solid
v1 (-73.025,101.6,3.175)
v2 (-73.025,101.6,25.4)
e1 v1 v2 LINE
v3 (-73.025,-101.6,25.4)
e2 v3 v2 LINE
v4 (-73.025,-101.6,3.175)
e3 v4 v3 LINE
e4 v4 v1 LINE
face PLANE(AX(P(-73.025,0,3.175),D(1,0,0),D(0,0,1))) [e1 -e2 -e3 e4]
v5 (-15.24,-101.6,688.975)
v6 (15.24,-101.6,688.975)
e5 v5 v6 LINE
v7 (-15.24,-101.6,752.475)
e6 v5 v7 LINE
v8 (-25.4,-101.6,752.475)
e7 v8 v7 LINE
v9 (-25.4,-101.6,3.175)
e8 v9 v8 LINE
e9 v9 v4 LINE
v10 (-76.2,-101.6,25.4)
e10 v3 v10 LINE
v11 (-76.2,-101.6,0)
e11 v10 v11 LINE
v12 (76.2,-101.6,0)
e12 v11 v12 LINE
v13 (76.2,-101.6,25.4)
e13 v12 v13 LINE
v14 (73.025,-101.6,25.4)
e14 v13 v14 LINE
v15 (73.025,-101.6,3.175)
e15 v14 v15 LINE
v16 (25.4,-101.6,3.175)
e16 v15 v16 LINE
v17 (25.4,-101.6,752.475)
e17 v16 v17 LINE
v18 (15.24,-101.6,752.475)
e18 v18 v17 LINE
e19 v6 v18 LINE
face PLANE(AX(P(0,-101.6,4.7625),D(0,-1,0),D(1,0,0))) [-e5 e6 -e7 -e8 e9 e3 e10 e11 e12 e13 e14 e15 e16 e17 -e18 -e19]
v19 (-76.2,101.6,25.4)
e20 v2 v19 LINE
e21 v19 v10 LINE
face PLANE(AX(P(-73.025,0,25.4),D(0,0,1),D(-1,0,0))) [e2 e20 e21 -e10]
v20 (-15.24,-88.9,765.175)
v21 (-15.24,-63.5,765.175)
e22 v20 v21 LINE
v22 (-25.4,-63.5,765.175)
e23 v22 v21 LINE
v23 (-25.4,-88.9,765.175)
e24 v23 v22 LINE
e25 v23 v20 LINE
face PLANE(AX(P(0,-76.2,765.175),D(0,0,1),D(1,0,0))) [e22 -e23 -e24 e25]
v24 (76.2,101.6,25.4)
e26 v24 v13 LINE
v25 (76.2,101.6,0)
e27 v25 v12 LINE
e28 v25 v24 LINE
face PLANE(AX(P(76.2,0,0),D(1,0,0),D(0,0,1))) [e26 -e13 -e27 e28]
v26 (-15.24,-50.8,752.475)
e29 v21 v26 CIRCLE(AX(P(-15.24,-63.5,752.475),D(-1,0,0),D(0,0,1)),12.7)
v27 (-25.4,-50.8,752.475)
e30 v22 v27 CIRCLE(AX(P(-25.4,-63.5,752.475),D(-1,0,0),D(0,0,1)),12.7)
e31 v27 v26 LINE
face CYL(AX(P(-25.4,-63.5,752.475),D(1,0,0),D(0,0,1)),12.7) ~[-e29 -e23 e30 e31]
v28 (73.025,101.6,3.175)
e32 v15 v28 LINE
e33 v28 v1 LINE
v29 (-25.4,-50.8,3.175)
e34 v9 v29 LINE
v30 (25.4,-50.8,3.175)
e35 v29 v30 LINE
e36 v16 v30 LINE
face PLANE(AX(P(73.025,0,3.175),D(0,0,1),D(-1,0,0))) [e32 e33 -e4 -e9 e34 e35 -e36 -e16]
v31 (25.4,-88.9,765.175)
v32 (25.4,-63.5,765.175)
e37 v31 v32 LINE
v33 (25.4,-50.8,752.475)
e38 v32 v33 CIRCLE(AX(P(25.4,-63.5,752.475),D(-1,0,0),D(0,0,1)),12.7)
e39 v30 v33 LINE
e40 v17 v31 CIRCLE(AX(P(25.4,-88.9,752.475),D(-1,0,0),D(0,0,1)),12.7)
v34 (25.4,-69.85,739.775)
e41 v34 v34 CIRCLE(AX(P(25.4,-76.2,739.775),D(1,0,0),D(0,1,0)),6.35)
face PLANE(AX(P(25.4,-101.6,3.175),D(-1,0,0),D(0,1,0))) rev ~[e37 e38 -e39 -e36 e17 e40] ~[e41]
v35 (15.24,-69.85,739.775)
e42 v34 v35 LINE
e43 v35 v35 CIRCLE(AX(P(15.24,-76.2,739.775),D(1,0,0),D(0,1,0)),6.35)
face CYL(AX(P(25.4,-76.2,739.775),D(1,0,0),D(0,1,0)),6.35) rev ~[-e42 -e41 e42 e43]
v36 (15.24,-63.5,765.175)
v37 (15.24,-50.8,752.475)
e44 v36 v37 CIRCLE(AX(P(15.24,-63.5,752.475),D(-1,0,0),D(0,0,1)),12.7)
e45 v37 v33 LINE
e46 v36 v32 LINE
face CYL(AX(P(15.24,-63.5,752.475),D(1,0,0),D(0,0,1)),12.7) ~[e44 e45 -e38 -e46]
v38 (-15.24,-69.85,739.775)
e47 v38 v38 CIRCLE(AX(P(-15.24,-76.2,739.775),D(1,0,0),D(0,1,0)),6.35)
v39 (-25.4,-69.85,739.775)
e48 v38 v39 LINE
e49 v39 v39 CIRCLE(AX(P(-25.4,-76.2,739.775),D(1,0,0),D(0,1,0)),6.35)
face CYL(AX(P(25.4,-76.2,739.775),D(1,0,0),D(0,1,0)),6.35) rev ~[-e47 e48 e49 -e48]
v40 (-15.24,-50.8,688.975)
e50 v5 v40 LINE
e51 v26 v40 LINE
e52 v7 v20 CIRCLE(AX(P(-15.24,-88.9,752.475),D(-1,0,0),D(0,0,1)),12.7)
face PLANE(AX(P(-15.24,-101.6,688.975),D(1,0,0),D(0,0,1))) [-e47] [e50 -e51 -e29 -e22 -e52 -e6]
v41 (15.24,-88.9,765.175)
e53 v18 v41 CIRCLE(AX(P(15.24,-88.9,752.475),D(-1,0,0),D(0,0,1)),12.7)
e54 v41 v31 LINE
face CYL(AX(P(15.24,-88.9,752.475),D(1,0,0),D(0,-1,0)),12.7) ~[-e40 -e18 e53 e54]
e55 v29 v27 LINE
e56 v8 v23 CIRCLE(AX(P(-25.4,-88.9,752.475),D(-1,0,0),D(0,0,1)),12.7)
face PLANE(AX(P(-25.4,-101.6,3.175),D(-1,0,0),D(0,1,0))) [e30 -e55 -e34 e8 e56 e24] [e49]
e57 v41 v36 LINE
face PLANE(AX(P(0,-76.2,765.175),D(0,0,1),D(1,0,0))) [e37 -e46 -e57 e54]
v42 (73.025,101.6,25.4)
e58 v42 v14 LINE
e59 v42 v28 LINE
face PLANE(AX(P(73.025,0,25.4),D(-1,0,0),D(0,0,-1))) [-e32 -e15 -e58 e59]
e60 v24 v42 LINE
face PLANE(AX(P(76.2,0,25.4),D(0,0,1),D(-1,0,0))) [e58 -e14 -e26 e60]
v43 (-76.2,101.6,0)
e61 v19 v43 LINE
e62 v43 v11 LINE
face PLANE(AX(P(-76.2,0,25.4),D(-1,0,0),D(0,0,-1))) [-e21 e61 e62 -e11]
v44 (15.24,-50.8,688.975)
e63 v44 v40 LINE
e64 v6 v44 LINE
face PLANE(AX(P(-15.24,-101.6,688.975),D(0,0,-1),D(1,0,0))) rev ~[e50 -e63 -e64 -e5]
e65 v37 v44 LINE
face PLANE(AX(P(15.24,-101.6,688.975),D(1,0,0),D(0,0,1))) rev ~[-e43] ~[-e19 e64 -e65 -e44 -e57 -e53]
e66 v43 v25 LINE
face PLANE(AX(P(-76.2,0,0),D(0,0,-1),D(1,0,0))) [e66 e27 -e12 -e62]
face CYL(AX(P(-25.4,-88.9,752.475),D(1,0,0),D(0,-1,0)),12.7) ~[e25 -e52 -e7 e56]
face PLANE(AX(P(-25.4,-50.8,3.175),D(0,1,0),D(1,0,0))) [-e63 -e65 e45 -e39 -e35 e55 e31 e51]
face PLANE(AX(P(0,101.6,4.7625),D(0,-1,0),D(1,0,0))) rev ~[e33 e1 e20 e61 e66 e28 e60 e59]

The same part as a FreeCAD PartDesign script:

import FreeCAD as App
import Part
import Sketcher
Q = App.Units.Quantity


def edges_at(feature, points):
    """Names of the edges that pass closest to the given points."""
    edges = feature.Shape.Edges
    near = lambda p: min(range(len(edges)), key=lambda i: edges[i].distToShape(Part.Vertex(*p))[0])
    return sorted({f"Edge{near(p) + 1}" for p in points})

doc = App.newDocument("Part")
body = doc.addObject("PartDesign::Body", "Body")

# Sketch on XZ plane
sketch1 = body.newObject("Sketcher::SketchObject", "Sketch")
sketch1.AttachmentSupport = (doc.getObject("XZ_Plane"), [""])
sketch1.MapMode = "FlatFace"
sketch1.addGeometry([
    Part.LineSegment(App.Vector(-73, 25.4, 0), App.Vector(-76.2, 25.4, 0)),  # 0
    Part.LineSegment(App.Vector(-76.2, 25.4, 0), App.Vector(-76.2, 0, 0)),  # 1
    Part.LineSegment(App.Vector(-76.2, 0, 0), App.Vector(76.2, 0, 0)),  # 2
    Part.LineSegment(App.Vector(76.2, 0, 0), App.Vector(76.2, 25.4, 0)),  # 3
    Part.LineSegment(App.Vector(76.2, 25.4, 0), App.Vector(73, 25.4, 0)),  # 4
    Part.LineSegment(App.Vector(73, 25.4, 0), App.Vector(73, 3.2, 0)),  # 5
    Part.LineSegment(App.Vector(73, 3.2, 0), App.Vector(-73, 3.2, 0)),  # 6
    Part.LineSegment(App.Vector(-73, 3.2, 0), App.Vector(-73, 25.4, 0)),  # 7
], False)
sketch1.addConstraint([
    Sketcher.Constraint("Coincident", 0, 2, 1, 1),
    Sketcher.Constraint("Coincident", 1, 2, 2, 1),
    Sketcher.Constraint("Coincident", 2, 2, 3, 1),
    Sketcher.Constraint("Coincident", 3, 2, 4, 1),
    Sketcher.Constraint("Coincident", 4, 2, 5, 1),
    Sketcher.Constraint("Coincident", 5, 2, 6, 1),
    Sketcher.Constraint("Coincident", 6, 2, 7, 1),
    Sketcher.Constraint("Coincident", 7, 2, 0, 1),
    Sketcher.Constraint("Horizontal", 0),
    Sketcher.Constraint("Vertical", 1),
    Sketcher.Constraint("Horizontal", 2),
    Sketcher.Constraint("Vertical", 3),
    Sketcher.Constraint("Horizontal", 4),
    Sketcher.Constraint("Vertical", 5),
    Sketcher.Constraint("Horizontal", 6),
    Sketcher.Constraint("Vertical", 7),
    Sketcher.Constraint("Symmetric", 1, 2, 2, 2, -1, 1),
    Sketcher.Constraint("Symmetric", 4, 2, 7, 2, -2),
    Sketcher.Constraint("DistanceX", 2, 1, 2, 2, Q("6 in")),
    Sketcher.Constraint("DistanceY", 1, 2, 1, 1, Q("1 in")),
    Sketcher.Constraint("DistanceX", 6, 2, 6, 1, Q("5.75 in")),
    Sketcher.Constraint("DistanceY", 5, 2, 5, 1, Q("0.875 in")),
])
pad1 = body.newObject("PartDesign::Pad", "Pad")
pad1.Profile = sketch1
pad1.Length = Q("8 in")
pad1.Midplane = True

# Sketch on XY plane
sketch2 = body.newObject("Sketcher::SketchObject", "Sketch001")
sketch2.AttachmentSupport = (doc.getObject("XY_Plane"), [""])
sketch2.MapMode = "FlatFace"
sketch2.AttachmentOffset = App.Placement(App.Vector(0, 0, 0.125 * 25.4), App.Rotation())
sketch2.addGeometry([
    Part.LineSegment(App.Vector(-25, -51, 0), App.Vector(-25, -102, 0)),
    Part.LineSegment(App.Vector(-25, -102, 0), App.Vector(25, -102, 0)),
    Part.LineSegment(App.Vector(25, -102, 0), App.Vector(25, -51, 0)),
    Part.LineSegment(App.Vector(25, -51, 0), App.Vector(-25, -51, 0)),
], False)
sketch2.addConstraint([
    Sketcher.Constraint("Coincident", 0, 2, 1, 1),
    Sketcher.Constraint("Coincident", 1, 2, 2, 1),
    Sketcher.Constraint("Coincident", 2, 2, 3, 1),
    Sketcher.Constraint("Coincident", 3, 2, 0, 1),
    Sketcher.Constraint("Vertical", 0),
    Sketcher.Constraint("Horizontal", 1),
    Sketcher.Constraint("Vertical", 2),
    Sketcher.Constraint("Horizontal", 3),
    Sketcher.Constraint("Equal", 3, 0),
    Sketcher.Constraint("DistanceX", 1, 1, 1, 2, Q("2 in")),
    Sketcher.Constraint("DistanceX", 0, 2, -1, 1, Q("1 in")),
    Sketcher.Constraint("DistanceY", 0, 2, -1, 1, Q("4 in")),
])
pad2 = body.newObject("PartDesign::Pad", "Pad001")
pad2.Profile = sketch2
pad2.Length = Q("30 in")

# Sketch on YZ plane
sketch3 = body.newObject("Sketcher::SketchObject", "Sketch002")
sketch3.AttachmentSupport = (doc.getObject("YZ_Plane"), [""])
sketch3.MapMode = "FlatFace"
sketch3.AttachmentOffset = App.Placement(App.Vector(0, 0, 1 * 25.4), App.Rotation())
sketch3.addGeometry(Part.Circle(App.Vector(-76, 740, 0), App.Vector(0, 0, 1), 6), False)
sketch3.addConstraint([
    Sketcher.Constraint("Diameter", 0, Q("0.5 in")),
    Sketcher.Constraint("DistanceX", 0, 3, -1, 1, Q("3 in")),
    Sketcher.Constraint("DistanceY", -1, 1, 0, 3, Q("29.125 in")),
])
pocket1 = body.newObject("PartDesign::Pocket", "Pocket")
pocket1.Profile = sketch3
pocket1.Type = "ThroughAll"

# Sketch on XZ plane
sketch4 = body.newObject("Sketcher::SketchObject", "Sketch003")
sketch4.AttachmentSupport = (doc.getObject("XZ_Plane"), [""])
sketch4.MapMode = "FlatFace"
sketch4.AttachmentOffset = App.Placement(App.Vector(0, 0, 4 * 25.4), App.Rotation())
sketch4.addGeometry([
    Part.LineSegment(App.Vector(-15, 765, 0), App.Vector(-15, 689, 0)),
    Part.LineSegment(App.Vector(-15, 689, 0), App.Vector(15, 689, 0)),
    Part.LineSegment(App.Vector(15, 689, 0), App.Vector(15, 765, 0)),
    Part.LineSegment(App.Vector(15, 765, 0), App.Vector(-15, 765, 0)),
], False)
sketch4.addConstraint([
    Sketcher.Constraint("Coincident", 0, 2, 1, 1),
    Sketcher.Constraint("Coincident", 1, 2, 2, 1),
    Sketcher.Constraint("Coincident", 2, 2, 3, 1),
    Sketcher.Constraint("Coincident", 3, 2, 0, 1),
    Sketcher.Constraint("Vertical", 0),
    Sketcher.Constraint("Horizontal", 1),
    Sketcher.Constraint("Vertical", 2),
    Sketcher.Constraint("Horizontal", 3),
    Sketcher.Constraint("DistanceY", 0, 2, 0, 1, Q("3 in")),
    Sketcher.Constraint("DistanceX", 1, 1, 1, 2, Q("1.2 in")),
    Sketcher.Constraint("DistanceX", 0, 2, -1, 1, Q("0.6 in")),
    Sketcher.Constraint("DistanceY", -1, 1, 0, 2, Q("27.125 in")),
])
pocket2 = body.newObject("PartDesign::Pocket", "Pocket001")
pocket2.Profile = sketch4
pocket2.Type = "ThroughAll"
doc.recompute()

fillet = body.newObject("PartDesign::Fillet", "Fillet")
fillet.Base = (pocket2, edges_at(pocket2, [
    (-20.32, -101.6, 765.175),
    (20.32, -101.6, 765.175),
    (-20.32, -50.8, 765.175),
    (20.32, -50.8, 765.175),
]))
fillet.Radius = Q("0.5 in")

doc.recompute()
